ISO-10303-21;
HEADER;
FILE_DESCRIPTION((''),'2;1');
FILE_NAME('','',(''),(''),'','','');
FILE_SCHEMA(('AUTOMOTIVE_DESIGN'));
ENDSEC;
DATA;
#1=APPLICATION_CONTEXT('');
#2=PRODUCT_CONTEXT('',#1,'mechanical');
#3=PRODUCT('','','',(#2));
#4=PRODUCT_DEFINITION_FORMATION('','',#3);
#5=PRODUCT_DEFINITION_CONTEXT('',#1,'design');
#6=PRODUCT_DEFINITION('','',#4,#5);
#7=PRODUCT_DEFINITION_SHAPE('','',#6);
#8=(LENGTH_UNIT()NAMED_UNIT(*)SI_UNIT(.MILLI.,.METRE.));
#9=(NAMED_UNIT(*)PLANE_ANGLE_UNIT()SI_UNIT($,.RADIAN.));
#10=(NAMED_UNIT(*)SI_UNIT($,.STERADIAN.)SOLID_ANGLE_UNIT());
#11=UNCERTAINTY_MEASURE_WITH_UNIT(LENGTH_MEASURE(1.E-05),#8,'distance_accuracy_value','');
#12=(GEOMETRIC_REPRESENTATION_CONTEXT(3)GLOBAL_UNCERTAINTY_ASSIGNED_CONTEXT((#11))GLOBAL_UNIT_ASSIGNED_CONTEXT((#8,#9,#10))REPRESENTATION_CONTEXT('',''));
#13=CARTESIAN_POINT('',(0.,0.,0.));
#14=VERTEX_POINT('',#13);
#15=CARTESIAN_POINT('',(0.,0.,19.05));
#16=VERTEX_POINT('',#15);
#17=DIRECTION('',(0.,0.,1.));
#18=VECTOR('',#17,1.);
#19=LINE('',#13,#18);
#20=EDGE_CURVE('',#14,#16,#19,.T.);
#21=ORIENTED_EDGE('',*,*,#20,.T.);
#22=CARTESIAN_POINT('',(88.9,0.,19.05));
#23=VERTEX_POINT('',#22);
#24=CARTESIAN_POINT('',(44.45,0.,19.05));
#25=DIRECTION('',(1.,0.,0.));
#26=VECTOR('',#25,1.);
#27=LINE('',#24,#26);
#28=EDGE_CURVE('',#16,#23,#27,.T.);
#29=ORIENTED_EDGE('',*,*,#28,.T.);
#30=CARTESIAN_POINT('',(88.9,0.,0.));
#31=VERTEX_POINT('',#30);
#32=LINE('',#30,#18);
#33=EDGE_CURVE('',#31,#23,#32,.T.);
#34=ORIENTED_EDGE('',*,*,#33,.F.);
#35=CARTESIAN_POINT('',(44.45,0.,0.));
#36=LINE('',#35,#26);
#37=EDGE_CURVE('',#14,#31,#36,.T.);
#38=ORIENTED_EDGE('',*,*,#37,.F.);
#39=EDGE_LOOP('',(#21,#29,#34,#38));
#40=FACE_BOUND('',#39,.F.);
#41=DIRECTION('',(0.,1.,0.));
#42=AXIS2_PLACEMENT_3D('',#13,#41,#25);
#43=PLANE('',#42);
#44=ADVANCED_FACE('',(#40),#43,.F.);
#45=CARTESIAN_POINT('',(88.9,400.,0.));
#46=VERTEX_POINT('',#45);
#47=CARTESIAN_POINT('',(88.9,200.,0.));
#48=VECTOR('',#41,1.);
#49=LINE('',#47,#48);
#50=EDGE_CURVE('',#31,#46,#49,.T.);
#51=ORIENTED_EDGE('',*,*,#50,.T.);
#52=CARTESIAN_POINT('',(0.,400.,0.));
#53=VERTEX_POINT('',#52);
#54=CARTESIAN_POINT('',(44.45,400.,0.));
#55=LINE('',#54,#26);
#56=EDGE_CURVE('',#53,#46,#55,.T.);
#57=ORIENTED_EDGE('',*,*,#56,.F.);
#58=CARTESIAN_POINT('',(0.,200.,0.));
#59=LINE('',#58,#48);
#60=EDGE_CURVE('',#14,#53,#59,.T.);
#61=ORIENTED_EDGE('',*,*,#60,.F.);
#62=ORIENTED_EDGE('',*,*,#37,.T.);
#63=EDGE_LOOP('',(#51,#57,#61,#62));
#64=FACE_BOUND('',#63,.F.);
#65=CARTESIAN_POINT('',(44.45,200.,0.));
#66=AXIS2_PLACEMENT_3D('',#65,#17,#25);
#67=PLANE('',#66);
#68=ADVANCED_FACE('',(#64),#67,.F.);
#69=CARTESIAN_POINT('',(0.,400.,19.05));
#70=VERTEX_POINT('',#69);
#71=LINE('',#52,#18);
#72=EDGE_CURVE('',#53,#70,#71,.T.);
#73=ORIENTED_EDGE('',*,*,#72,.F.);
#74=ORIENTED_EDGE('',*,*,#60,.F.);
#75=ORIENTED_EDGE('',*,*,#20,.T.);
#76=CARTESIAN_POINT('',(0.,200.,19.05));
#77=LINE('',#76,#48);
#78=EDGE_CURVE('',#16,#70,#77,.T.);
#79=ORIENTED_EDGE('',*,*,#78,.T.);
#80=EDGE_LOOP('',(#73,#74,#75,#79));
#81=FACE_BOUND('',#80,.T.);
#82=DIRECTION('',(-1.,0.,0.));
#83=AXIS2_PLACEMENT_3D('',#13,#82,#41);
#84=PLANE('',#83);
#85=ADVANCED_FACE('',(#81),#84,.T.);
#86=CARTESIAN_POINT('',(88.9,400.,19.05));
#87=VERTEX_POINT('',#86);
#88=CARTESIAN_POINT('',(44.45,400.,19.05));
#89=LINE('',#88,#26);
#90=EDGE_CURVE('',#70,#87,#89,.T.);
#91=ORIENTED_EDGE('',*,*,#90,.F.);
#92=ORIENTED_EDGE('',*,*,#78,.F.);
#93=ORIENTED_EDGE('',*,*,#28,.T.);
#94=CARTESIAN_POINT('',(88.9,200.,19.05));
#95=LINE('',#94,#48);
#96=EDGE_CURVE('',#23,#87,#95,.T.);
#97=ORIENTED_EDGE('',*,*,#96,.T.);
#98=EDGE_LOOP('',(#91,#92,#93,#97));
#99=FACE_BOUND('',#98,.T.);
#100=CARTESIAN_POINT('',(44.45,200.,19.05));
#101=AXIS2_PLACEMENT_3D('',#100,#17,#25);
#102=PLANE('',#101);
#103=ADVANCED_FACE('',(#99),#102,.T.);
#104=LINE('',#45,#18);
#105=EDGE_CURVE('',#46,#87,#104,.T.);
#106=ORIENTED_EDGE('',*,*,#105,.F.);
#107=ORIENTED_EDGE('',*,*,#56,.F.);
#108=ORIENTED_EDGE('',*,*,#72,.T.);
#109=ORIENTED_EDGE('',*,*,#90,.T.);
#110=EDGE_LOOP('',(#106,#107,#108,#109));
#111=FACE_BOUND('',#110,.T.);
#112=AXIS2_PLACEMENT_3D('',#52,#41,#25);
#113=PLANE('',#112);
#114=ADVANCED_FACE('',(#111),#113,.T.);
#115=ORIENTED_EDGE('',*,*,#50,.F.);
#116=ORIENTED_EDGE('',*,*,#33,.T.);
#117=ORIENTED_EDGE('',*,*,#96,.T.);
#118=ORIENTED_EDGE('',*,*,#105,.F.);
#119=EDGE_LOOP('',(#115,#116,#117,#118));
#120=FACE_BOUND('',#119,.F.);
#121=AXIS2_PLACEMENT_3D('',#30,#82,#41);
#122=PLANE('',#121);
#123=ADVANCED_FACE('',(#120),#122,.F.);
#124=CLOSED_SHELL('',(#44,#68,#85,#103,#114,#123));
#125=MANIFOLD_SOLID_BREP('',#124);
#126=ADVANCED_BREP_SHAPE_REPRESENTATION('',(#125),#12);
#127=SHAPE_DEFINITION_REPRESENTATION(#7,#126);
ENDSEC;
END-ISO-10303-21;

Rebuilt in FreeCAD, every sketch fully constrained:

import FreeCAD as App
import Part
import Sketcher
from FreeCAD import Vector
Q = App.Units.Quantity

doc = App.newDocument("Part")
body = doc.addObject("PartDesign::Body", "Body")

# Sketch on XY plane
sketch1 = body.newObject("Sketcher::SketchObject", "Sketch")
sketch1.AttachmentSupport = (doc.getObject("XY_Plane"), [""])
sketch1.MapMode = "FlatFace"
sketch1.addGeometry([
    Part.LineSegment(Vector(0, 400, 0), Vector(0, 0, 0)),
    Part.LineSegment(Vector(0, 0, 0), Vector(89, 0, 0)),
    Part.LineSegment(Vector(89, 0, 0), Vector(89, 400, 0)),
    Part.LineSegment(Vector(89, 400, 0), Vector(0, 400, 0)),
], False)
sketch1.addConstraint([
    Sketcher.Constraint("Coincident", 0, 2, 1, 1),
    Sketcher.Constraint("Coincident", 1, 2, 2, 1),
    Sketcher.Constraint("Coincident", 2, 2, 3, 1),
    Sketcher.Constraint("Coincident", 3, 2, 0, 1),
    Sketcher.Constraint("Vertical", 0),
    Sketcher.Constraint("Horizontal", 1),
    Sketcher.Constraint("Vertical", 2),
    Sketcher.Constraint("Horizontal", 3),
    Sketcher.Constraint("Coincident", 0, 2, -1, 1),
    Sketcher.Constraint("DistanceX", 1, 1, 1, 2, Q("3.5 in")),
    Sketcher.Constraint("DistanceY", 0, 2, 0, 1, 400.0),
])
pad1 = body.newObject("PartDesign::Pad", "Pad")
pad1.Profile = sketch1
pad1.Length = Q("0.75 in")

doc.recompute()
